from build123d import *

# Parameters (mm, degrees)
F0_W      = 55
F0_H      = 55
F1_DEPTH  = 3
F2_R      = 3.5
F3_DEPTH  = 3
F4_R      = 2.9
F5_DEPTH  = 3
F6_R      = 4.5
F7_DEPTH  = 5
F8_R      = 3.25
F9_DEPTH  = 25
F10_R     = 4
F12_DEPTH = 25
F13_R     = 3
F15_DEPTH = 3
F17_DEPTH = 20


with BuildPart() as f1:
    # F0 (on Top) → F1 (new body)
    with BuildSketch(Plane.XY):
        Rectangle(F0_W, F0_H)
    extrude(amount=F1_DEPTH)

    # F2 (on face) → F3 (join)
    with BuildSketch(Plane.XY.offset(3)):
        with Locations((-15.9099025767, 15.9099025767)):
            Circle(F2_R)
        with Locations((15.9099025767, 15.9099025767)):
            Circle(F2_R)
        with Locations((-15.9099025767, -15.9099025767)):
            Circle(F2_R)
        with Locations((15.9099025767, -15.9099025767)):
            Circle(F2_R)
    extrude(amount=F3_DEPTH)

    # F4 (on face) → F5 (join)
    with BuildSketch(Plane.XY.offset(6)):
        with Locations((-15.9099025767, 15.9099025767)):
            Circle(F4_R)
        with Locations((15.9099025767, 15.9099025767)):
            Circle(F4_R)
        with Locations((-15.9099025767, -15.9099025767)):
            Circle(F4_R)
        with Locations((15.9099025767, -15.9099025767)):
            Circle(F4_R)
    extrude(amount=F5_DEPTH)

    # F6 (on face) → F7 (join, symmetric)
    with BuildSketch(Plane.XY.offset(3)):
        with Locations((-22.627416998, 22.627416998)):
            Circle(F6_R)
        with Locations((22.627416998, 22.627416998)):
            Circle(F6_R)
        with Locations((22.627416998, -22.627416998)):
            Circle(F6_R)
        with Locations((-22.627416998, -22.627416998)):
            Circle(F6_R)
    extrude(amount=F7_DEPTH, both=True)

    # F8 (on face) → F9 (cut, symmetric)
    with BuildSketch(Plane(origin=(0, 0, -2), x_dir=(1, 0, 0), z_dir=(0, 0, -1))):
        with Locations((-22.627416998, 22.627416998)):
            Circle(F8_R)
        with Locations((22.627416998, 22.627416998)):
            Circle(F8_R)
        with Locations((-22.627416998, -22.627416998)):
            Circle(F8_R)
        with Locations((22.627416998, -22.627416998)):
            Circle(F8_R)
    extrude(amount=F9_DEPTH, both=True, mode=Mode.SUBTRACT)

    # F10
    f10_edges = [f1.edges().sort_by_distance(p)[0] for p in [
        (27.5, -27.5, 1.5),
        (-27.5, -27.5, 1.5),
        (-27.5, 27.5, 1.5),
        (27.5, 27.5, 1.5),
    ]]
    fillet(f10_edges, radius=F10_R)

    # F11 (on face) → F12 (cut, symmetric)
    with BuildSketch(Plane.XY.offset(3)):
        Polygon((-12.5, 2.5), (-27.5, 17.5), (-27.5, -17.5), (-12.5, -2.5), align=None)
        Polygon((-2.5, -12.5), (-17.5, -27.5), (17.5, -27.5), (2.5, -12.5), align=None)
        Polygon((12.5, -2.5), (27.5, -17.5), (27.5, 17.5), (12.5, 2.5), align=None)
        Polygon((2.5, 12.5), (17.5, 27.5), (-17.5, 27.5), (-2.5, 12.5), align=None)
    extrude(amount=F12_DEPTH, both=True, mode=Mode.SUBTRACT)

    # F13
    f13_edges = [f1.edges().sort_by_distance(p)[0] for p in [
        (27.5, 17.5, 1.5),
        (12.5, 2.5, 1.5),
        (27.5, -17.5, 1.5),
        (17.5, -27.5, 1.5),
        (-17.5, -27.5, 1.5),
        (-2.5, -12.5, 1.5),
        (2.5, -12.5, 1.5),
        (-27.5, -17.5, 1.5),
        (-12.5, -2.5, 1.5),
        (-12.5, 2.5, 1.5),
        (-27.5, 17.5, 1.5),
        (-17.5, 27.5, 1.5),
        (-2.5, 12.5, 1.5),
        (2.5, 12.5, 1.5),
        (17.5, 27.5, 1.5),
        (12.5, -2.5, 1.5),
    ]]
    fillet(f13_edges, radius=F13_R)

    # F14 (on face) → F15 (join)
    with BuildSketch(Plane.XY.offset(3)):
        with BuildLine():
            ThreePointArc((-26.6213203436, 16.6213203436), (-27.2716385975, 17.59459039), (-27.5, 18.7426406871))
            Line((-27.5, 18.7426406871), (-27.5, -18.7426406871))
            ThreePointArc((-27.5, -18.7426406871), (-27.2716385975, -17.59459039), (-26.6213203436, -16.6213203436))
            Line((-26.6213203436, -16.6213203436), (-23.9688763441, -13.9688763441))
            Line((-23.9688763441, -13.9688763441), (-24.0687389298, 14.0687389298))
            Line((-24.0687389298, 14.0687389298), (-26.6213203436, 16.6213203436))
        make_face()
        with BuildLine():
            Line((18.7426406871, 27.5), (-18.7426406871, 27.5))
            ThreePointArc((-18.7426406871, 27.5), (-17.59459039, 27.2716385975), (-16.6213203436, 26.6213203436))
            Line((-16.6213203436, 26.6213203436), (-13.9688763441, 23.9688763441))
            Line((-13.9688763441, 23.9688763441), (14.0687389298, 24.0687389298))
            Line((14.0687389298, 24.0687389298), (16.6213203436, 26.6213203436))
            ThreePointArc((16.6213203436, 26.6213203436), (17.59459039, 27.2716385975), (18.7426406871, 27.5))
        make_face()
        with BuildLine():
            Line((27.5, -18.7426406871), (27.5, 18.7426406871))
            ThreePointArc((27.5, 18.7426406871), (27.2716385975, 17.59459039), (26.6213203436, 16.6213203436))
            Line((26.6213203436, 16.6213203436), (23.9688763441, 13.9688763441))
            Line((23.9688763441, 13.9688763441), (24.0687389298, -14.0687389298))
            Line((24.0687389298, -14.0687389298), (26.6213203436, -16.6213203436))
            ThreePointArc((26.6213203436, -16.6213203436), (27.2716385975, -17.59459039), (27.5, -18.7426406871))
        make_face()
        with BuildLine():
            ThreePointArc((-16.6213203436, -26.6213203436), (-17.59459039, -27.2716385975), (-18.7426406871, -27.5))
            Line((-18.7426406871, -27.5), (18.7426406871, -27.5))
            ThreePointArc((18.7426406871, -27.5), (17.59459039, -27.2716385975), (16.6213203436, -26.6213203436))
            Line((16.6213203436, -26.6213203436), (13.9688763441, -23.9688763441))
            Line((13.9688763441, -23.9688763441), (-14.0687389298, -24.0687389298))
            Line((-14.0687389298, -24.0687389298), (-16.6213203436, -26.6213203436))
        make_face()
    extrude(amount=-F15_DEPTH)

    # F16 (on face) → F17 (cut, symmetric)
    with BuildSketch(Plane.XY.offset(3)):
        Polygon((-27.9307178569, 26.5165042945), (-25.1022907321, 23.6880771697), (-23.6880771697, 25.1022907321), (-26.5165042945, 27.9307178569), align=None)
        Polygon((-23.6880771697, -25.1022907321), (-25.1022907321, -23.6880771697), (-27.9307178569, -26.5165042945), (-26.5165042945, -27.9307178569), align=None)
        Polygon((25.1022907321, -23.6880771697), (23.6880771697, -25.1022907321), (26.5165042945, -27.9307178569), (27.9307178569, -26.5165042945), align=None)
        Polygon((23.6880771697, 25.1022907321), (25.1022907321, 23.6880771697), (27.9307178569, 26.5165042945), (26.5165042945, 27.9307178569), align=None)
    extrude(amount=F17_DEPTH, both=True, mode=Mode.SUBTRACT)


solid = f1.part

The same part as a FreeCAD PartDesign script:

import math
import FreeCAD as App
import Part
import Sketcher


def edges_at(feature, points):
    """Names of the edges that pass closest to the given points."""
    edges = feature.Shape.Edges
    near = lambda p: min(range(len(edges)), key=lambda i: edges[i].distToShape(Part.Vertex(*p))[0])
    return sorted({f"Edge{near(p) + 1}" for p in points})

doc = App.newDocument("Part")
body = doc.addObject("PartDesign::Body", "Body")

# Sketch on XY plane
sketch1 = body.newObject("Sketcher::SketchObject", "Sketch")
sketch1.AttachmentSupport = (doc.getObject("XY_Plane"), [""])
sketch1.MapMode = "FlatFace"
sketch1.addGeometry([
    Part.LineSegment(App.Vector(-28, 28, 0), App.Vector(-28, -28, 0)),
    Part.LineSegment(App.Vector(-28, -28, 0), App.Vector(28, -28, 0)),
    Part.LineSegment(App.Vector(28, -28, 0), App.Vector(28, 28, 0)),
    Part.LineSegment(App.Vector(28, 28, 0), App.Vector(-28, 28, 0)),
], False)
sketch1.addConstraint([
    Sketcher.Constraint("Coincident", 0, 2, 1, 1),
    Sketcher.Constraint("Coincident", 1, 2, 2, 1),
    Sketcher.Constraint("Coincident", 2, 2, 3, 1),
    Sketcher.Constraint("Coincident", 3, 2, 0, 1),
    Sketcher.Constraint("Vertical", 0),
    Sketcher.Constraint("Horizontal", 1),
    Sketcher.Constraint("Vertical", 2),
    Sketcher.Constraint("Horizontal", 3),
    Sketcher.Constraint("Symmetric", 0, 2, 2, 2, -1, 1),
    Sketcher.Constraint("Equal", 3, 0),
    Sketcher.Constraint("DistanceX", 1, 1, 1, 2, 55.0),
])
pad1 = body.newObject("PartDesign::Pad", "Pad")
pad1.Profile = sketch1
pad1.Length = 3

# Sketch on XY plane
sketch2 = body.newObject("Sketcher::SketchObject", "Sketch001")
sketch2.AttachmentSupport = (doc.getObject("XY_Plane"), [""])
sketch2.MapMode = "FlatFace"
sketch2.AttachmentOffset = App.Placement(App.Vector(0, 0, 3), App.Rotation())
sketch2.addGeometry([
    Part.Circle(App.Vector(-15.9, 15.9, 0), App.Vector(0, 0, 1), 3.5),
    Part.Circle(App.Vector(15.9, 15.9, 0), App.Vector(0, 0, 1), 3.5),
    Part.Circle(App.Vector(-15.9, -15.9, 0), App.Vector(0, 0, 1), 3.5),
    Part.Circle(App.Vector(15.9, -15.9, 0), App.Vector(0, 0, 1), 3.5),
], False)
sketch2.addConstraint([
    Sketcher.Constraint("Equal", 0, 1),
    Sketcher.Constraint("Equal", 1, 2),
    Sketcher.Constraint("Equal", 2, 3),
    Sketcher.Constraint("Symmetric", 1, 3, 2, 3, -1, 1),
    Sketcher.Constraint("Symmetric", 0, 3, 3, 3, -1, 1),
    Sketcher.Constraint("Symmetric", 0, 3, 1, 3, -2),
    Sketcher.Constraint("Diameter", 0, 7.0),
    Sketcher.Constraint("DistanceX", 0, 3, -1, 1, 15.909903),
    Sketcher.Constraint("DistanceY", -1, 1, 0, 3, 15.909903),
])
pad2 = body.newObject("PartDesign::Pad", "Pad001")
pad2.Profile = sketch2
pad2.Length = 3

# Sketch on XY plane
sketch3 = body.newObject("Sketcher::SketchObject", "Sketch002")
sketch3.AttachmentSupport = (doc.getObject("XY_Plane"), [""])
sketch3.MapMode = "FlatFace"
sketch3.AttachmentOffset = App.Placement(App.Vector(0, 0, 6), App.Rotation())
sketch3.addGeometry([
    Part.Circle(App.Vector(-15.9, 15.9, 0), App.Vector(0, 0, 1), 2.9),
    Part.Circle(App.Vector(15.9, 15.9, 0), App.Vector(0, 0, 1), 2.9),
    Part.Circle(App.Vector(-15.9, -15.9, 0), App.Vector(0, 0, 1), 2.9),
    Part.Circle(App.Vector(15.9, -15.9, 0), App.Vector(0, 0, 1), 2.9),
], False)
sketch3.addConstraint([
    Sketcher.Constraint("Equal", 0, 1),
    Sketcher.Constraint("Equal", 1, 2),
    Sketcher.Constraint("Equal", 2, 3),
    Sketcher.Constraint("Symmetric", 1, 3, 2, 3, -1, 1),
    Sketcher.Constraint("Symmetric", 0, 3, 3, 3, -1, 1),
    Sketcher.Constraint("Symmetric", 0, 3, 1, 3, -2),
    Sketcher.Constraint("Diameter", 0, 5.8),
    Sketcher.Constraint("DistanceX", 0, 3, -1, 1, 15.909903),
    Sketcher.Constraint("DistanceY", -1, 1, 0, 3, 15.909903),
])
pad3 = body.newObject("PartDesign::Pad", "Pad002")
pad3.Profile = sketch3
pad3.Length = 3

# Sketch on XY plane
sketch4 = body.newObject("Sketcher::SketchObject", "Sketch003")
sketch4.AttachmentSupport = (doc.getObject("XY_Plane"), [""])
sketch4.MapMode = "FlatFace"
sketch4.AttachmentOffset = App.Placement(App.Vector(0, 0, 3), App.Rotation())
sketch4.addGeometry([
    Part.Circle(App.Vector(-22.6, 22.6, 0), App.Vector(0, 0, 1), 4.5),
    Part.Circle(App.Vector(22.6, 22.6, 0), App.Vector(0, 0, 1), 4.5),
    Part.Circle(App.Vector(22.6, -22.6, 0), App.Vector(0, 0, 1), 4.5),
    Part.Circle(App.Vector(-22.6, -22.6, 0), App.Vector(0, 0, 1), 4.5),
], False)
sketch4.addConstraint([
    Sketcher.Constraint("Equal", 0, 1),
    Sketcher.Constraint("Equal", 1, 2),
    Sketcher.Constraint("Equal", 2, 3),
    Sketcher.Constraint("Symmetric", 0, 3, 2, 3, -1, 1),
    Sketcher.Constraint("Symmetric", 1, 3, 3, 3, -1, 1),
    Sketcher.Constraint("Symmetric", 0, 3, 1, 3, -2),
    Sketcher.Constraint("Diameter", 0, 9.0),
    Sketcher.Constraint("DistanceX", 0, 3, -1, 1, 22.627417),
    Sketcher.Constraint("DistanceY", -1, 1, 0, 3, 22.627417),
])
pad4 = body.newObject("PartDesign::Pad", "Pad003")
pad4.Profile = sketch4
pad4.Length = 10
pad4.Midplane = True

# Sketch on XY plane
sketch5 = body.newObject("Sketcher::SketchObject", "Sketch004")
sketch5.AttachmentSupport = (doc.getObject("XY_Plane"), [""])
sketch5.MapMode = "FlatFace"
sketch5.AttachmentOffset = App.Placement(App.Vector(0, 0, -2), App.Rotation())
sketch5.addGeometry([
    Part.Circle(App.Vector(-22.6, -22.6, 0), App.Vector(0, 0, 1), 3.2),
    Part.Circle(App.Vector(22.6, -22.6, 0), App.Vector(0, 0, 1), 3.2),
    Part.Circle(App.Vector(-22.6, 22.6, 0), App.Vector(0, 0, 1), 3.2),
    Part.Circle(App.Vector(22.6, 22.6, 0), App.Vector(0, 0, 1), 3.2),
], False)
sketch5.addConstraint([
    Sketcher.Constraint("Equal", 0, 1),
    Sketcher.Constraint("Equal", 1, 2),
    Sketcher.Constraint("Equal", 2, 3),
    Sketcher.Constraint("Symmetric", 1, 3, 2, 3, -1, 1),
    Sketcher.Constraint("Symmetric", 0, 3, 3, 3, -1, 1),
    Sketcher.Constraint("Symmetric", 0, 3, 1, 3, -2),
    Sketcher.Constraint("Diameter", 0, 6.5),
    Sketcher.Constraint("DistanceX", 0, 3, -1, 1, 22.627417),
    Sketcher.Constraint("DistanceY", 0, 3, -1, 1, 22.627417),
])
pocket1 = body.newObject("PartDesign::Pocket", "Pocket")
pocket1.Profile = sketch5
pocket1.Length = 50
pocket1.Midplane = True
doc.recompute()

fillet = body.newObject("PartDesign::Fillet", "Fillet")
fillet.Base = (pocket1, edges_at(pocket1, [
    (27.5, -27.5, 1.5),
    (-27.5, -27.5, 1.5),
    (-27.5, 27.5, 1.5),
    (27.5, 27.5, 1.5),
]))
fillet.Radius = 4

# Sketch on XY plane
sketch6 = body.newObject("Sketcher::SketchObject", "Sketch005")
sketch6.AttachmentSupport = (doc.getObject("XY_Plane"), [""])
sketch6.MapMode = "FlatFace"
sketch6.AttachmentOffset = App.Placement(App.Vector(0, 0, 3), App.Rotation())
sketch6.addGeometry([
    Part.LineSegment(App.Vector(-12, 2, 0), App.Vector(-28, 18, 0)),  # 0
    Part.LineSegment(App.Vector(-28, 18, 0), App.Vector(-28, -18, 0)),  # 1
    Part.LineSegment(App.Vector(-28, -18, 0), App.Vector(-12, -2, 0)),  # 2
    Part.LineSegment(App.Vector(-12, -2, 0), App.Vector(-12, 2, 0)),  # 3
    Part.LineSegment(App.Vector(-2, -12, 0), App.Vector(-18, -28, 0)),  # 4
    Part.LineSegment(App.Vector(-18, -28, 0), App.Vector(18, -28, 0)),  # 5
    Part.LineSegment(App.Vector(18, -28, 0), App.Vector(2, -12, 0)),  # 6
    Part.LineSegment(App.Vector(2, -12, 0), App.Vector(-2, -12, 0)),  # 7
    Part.LineSegment(App.Vector(12, -2, 0), App.Vector(28, -18, 0)),  # 8
    Part.LineSegment(App.Vector(28, -18, 0), App.Vector(28, 18, 0)),  # 9
    Part.LineSegment(App.Vector(28, 18, 0), App.Vector(12, 2, 0)),  # 10
    Part.LineSegment(App.Vector(12, 2, 0), App.Vector(12, -2, 0)),  # 11
    Part.LineSegment(App.Vector(2, 12, 0), App.Vector(18, 28, 0)),  # 12
    Part.LineSegment(App.Vector(18, 28, 0), App.Vector(-18, 28, 0)),  # 13
    Part.LineSegment(App.Vector(-18, 28, 0), App.Vector(-2, 12, 0)),  # 14
    Part.LineSegment(App.Vector(-2, 12, 0), App.Vector(2, 12, 0)),  # 15
], False)
sketch6.addConstraint([
    Sketcher.Constraint("Coincident", 0, 2, 1, 1),
    Sketcher.Constraint("Coincident", 1, 2, 2, 1),
    Sketcher.Constraint("Coincident", 2, 2, 3, 1),
    Sketcher.Constraint("Coincident", 3, 2, 0, 1),
    Sketcher.Constraint("Coincident", 4, 2, 5, 1),
    Sketcher.Constraint("Coincident", 5, 2, 6, 1),
    Sketcher.Constraint("Coincident", 6, 2, 7, 1),
    Sketcher.Constraint("Coincident", 7, 2, 4, 1),
    Sketcher.Constraint("Coincident", 8, 2, 9, 1),
    Sketcher.Constraint("Coincident", 9, 2, 10, 1),
    Sketcher.Constraint("Coincident", 10, 2, 11, 1),
    Sketcher.Constraint("Coincident", 11, 2, 8, 1),
    Sketcher.Constraint("Coincident", 12, 2, 13, 1),
    Sketcher.Constraint("Coincident", 13, 2, 14, 1),
    Sketcher.Constraint("Coincident", 14, 2, 15, 1),
    Sketcher.Constraint("Coincident", 15, 2, 12, 1),
    Sketcher.Constraint("Vertical", 1),
    Sketcher.Constraint("Vertical", 3),
    Sketcher.Constraint("Horizontal", 5),
    Sketcher.Constraint("Horizontal", 7),
    Sketcher.Constraint("Vertical", 9),
    Sketcher.Constraint("Vertical", 11),
    Sketcher.Constraint("Horizontal", 13),
    Sketcher.Constraint("Horizontal", 15),
    Sketcher.Constraint("Symmetric", 0, 2, 8, 2, -1, 1),
    Sketcher.Constraint("Symmetric", 2, 2, 10, 2, -1, 1),
    Sketcher.Constraint("Symmetric", 4, 2, 12, 2, -1, 1),
    Sketcher.Constraint("Symmetric", 6, 2, 14, 2, -1, 1),
    Sketcher.Constraint("Perpendicular", 0, 2),
    Sketcher.Constraint("Parallel", 2, 4),
    Sketcher.Constraint("Perpendicular", 4, 6),
    Sketcher.Constraint("Parallel", 6, 8),
    Sketcher.Constraint("Perpendicular", 8, 10),
    Sketcher.Constraint("Parallel", 10, 12),
    Sketcher.Constraint("Perpendicular", 12, 14),
    Sketcher.Constraint("Horizontal", 1, 2, 8, 2),
    Sketcher.Constraint("Horizontal", 3, 2, 10, 2),
    Sketcher.Constraint("Vertical", 5, 2, 12, 2),
    Sketcher.Constraint("Equal", 13, 1),
    Sketcher.Constraint("Equal", 15, 3),
    Sketcher.Constraint("DistanceX", 5, 1, 5, 2, 35.0),
    Sketcher.Constraint("DistanceX", 7, 2, 7, 1, 5.0),
    Sketcher.Constraint("DistanceX", 1, 2, 4, 2, 10.0),
    Sketcher.Constraint("DistanceY", 4, 2, 1, 2, 10.0),
])
pocket2 = body.newObject("PartDesign::Pocket", "Pocket001")
pocket2.Profile = sketch6
pocket2.Length = 50
pocket2.Midplane = True
doc.recompute()

fillet2 = body.newObject("PartDesign::Fillet", "Fillet001")
fillet2.Base = (pocket2, edges_at(pocket2, [
    (27.5, 17.5, 1.5),
    (12.5, 2.5, 1.5),
    (27.5, -17.5, 1.5),
    (17.5, -27.5, 1.5),
    (-17.5, -27.5, 1.5),
    (-2.5, -12.5, 1.5),
    (2.5, -12.5, 1.5),
    (-27.5, -17.5, 1.5),
    (-12.5, -2.5, 1.5),
    (-12.5, 2.5, 1.5),
    (-27.5, 17.5, 1.5),
    (-17.5, 27.5, 1.5),
    (-2.5, 12.5, 1.5),
    (2.5, 12.5, 1.5),
    (17.5, 27.5, 1.5),
    (12.5, -2.5, 1.5),
]))
fillet2.Radius = 3

# Sketch on XY plane
sketch7 = body.newObject("Sketcher::SketchObject", "Sketch006")
sketch7.AttachmentSupport = (doc.getObject("XY_Plane"), [""])
sketch7.MapMode = "FlatFace"
sketch7.AttachmentOffset = App.Placement(App.Vector(0, 0, 3), App.Rotation())
sketch7.addGeometry([
    Part.ArcOfCircle(Part.Circle(App.Vector(-24.5, 18.7, 0), App.Vector(0, 0, 1), 3), math.radians(180), math.radians(225)),  # 0
    Part.LineSegment(App.Vector(-27.5, 18.7, 0), App.Vector(-27.5, -18.7, 0)),  # 1
    Part.ArcOfCircle(Part.Circle(App.Vector(-24.5, -18.7, 0), App.Vector(0, 0, 1), 3), math.radians(135), math.radians(180)),  # 2
    Part.LineSegment(App.Vector(-26.6, -16.6, 0), App.Vector(-24, -14, 0)),  # 3
    Part.LineSegment(App.Vector(-24, -14, 0), App.Vector(-24.1, 14.1, 0)),  # 4
    Part.LineSegment(App.Vector(-24.1, 14.1, 0), App.Vector(-26.6, 16.6, 0)),  # 5
    Part.LineSegment(App.Vector(18.7, 27.5, 0), App.Vector(-18.7, 27.5, 0)),  # 6
    Part.ArcOfCircle(Part.Circle(App.Vector(-18.7, 24.5, 0), App.Vector(0, 0, 1), 3), math.radians(45), math.radians(90)),  # 7
    Part.LineSegment(App.Vector(-16.6, 26.6, 0), App.Vector(-14, 24, 0)),  # 8
    Part.LineSegment(App.Vector(-14, 24, 0), App.Vector(14.1, 24.1, 0)),  # 9
    Part.LineSegment(App.Vector(14.1, 24.1, 0), App.Vector(16.6, 26.6, 0)),  # 10
    Part.ArcOfCircle(Part.Circle(App.Vector(18.7, 24.5, 0), App.Vector(0, 0, 1), 3), math.radians(90), math.radians(135)),  # 11
    Part.LineSegment(App.Vector(27.5, -18.7, 0), App.Vector(27.5, 18.7, 0)),  # 12
    Part.ArcOfCircle(Part.Circle(App.Vector(24.5, 18.7, 0), App.Vector(0, 0, 1), 3), math.radians(-45), math.radians(0)),  # 13
    Part.LineSegment(App.Vector(26.6, 16.6, 0), App.Vector(24, 14, 0)),  # 14
    Part.LineSegment(App.Vector(24, 14, 0), App.Vector(24.1, -14.1, 0)),  # 15
    Part.LineSegment(App.Vector(24.1, -14.1, 0), App.Vector(26.6, -16.6, 0)),  # 16
    Part.ArcOfCircle(Part.Circle(App.Vector(24.5, -18.7, 0), App.Vector(0, 0, 1), 3), math.radians(0), math.radians(45)),  # 17
    Part.ArcOfCircle(Part.Circle(App.Vector(-18.7, -24.5, 0), App.Vector(0, 0, 1), 3), math.radians(-90), math.radians(-45)),  # 18
    Part.LineSegment(App.Vector(-18.7, -27.5, 0), App.Vector(18.7, -27.5, 0)),  # 19
    Part.ArcOfCircle(Part.Circle(App.Vector(18.7, -24.5, 0), App.Vector(0, 0, 1), 3), math.radians(-135), math.radians(-90)),  # 20
    Part.LineSegment(App.Vector(16.6, -26.6, 0), App.Vector(14, -24, 0)),  # 21
    Part.LineSegment(App.Vector(14, -24, 0), App.Vector(-14.1, -24.1, 0)),  # 22
    Part.LineSegment(App.Vector(-14.1, -24.1, 0), App.Vector(-16.6, -26.6, 0)),  # 23
], False)
sketch7.addConstraint([
    Sketcher.Constraint("Tangent", 0, 1, 1, 1),
    Sketcher.Constraint("Tangent", 1, 2, 2, 2),
    Sketcher.Constraint("Tangent", 2, 1, 3, 1),
    Sketcher.Constraint("Coincident", 3, 2, 4, 1),
    Sketcher.Constraint("Coincident", 4, 2, 5, 1),
    Sketcher.Constraint("Tangent", 5, 2, 0, 2),
    Sketcher.Constraint("Tangent", 6, 2, 7, 2),
    Sketcher.Constraint("Tangent", 7, 1, 8, 1),
    Sketcher.Constraint("Coincident", 8, 2, 9, 1),
    Sketcher.Constraint("Coincident", 9, 2, 10, 1),
    Sketcher.Constraint("Tangent", 10, 2, 11, 2),
    Sketcher.Constraint("Tangent", 11, 1, 6, 1),
    Sketcher.Constraint("Tangent", 12, 2, 13, 2),
    Sketcher.Constraint("Tangent", 13, 1, 14, 1),
    Sketcher.Constraint("Coincident", 14, 2, 15, 1),
    Sketcher.Constraint("Coincident", 15, 2, 16, 1),
    Sketcher.Constraint("Tangent", 16, 2, 17, 2),
    Sketcher.Constraint("Tangent", 17, 1, 12, 1),
    Sketcher.Constraint("Tangent", 18, 1, 19, 1),
    Sketcher.Constraint("Tangent", 19, 2, 20, 2),
    Sketcher.Constraint("Tangent", 20, 1, 21, 1),
    Sketcher.Constraint("Coincident", 21, 2, 22, 1),
    Sketcher.Constraint("Coincident", 22, 2, 23, 1),
    Sketcher.Constraint("Tangent", 23, 2, 18, 2),
    Sketcher.Constraint("Vertical", 1),
    Sketcher.Constraint("Horizontal", 6),
    Sketcher.Constraint("Vertical", 12),
    Sketcher.Constraint("Horizontal", 19),
    Sketcher.Constraint("Equal", 0, 2),
    Sketcher.Constraint("Equal", 2, 7),
    Sketcher.Constraint("Equal", 7, 11),
    Sketcher.Constraint("Equal", 11, 13),
    Sketcher.Constraint("Equal", 13, 17),
    Sketcher.Constraint("Equal", 17, 18),
    Sketcher.Constraint("Equal", 18, 20),
    Sketcher.Constraint("Symmetric", 2, 3, 13, 3, -1, 1),
    Sketcher.Constraint("Symmetric", 11, 3, 18, 3, -1, 1),
    Sketcher.Constraint("Symmetric", 3, 2, 14, 2, -1, 1),
    Sketcher.Constraint("Symmetric", 4, 2, 15, 2, -1, 1),
    Sketcher.Constraint("Symmetric", 7, 1, 20, 1, -1, 1),
    Sketcher.Constraint("Symmetric", 9, 2, 22, 2, -1, 1),
    Sketcher.Constraint("Symmetric", 7, 1, 10, 2, -2),
    Sketcher.Constraint("Symmetric", 5, 2, 13, 1, -2),
    Sketcher.Constraint("Perpendicular", 3, 5),
    Sketcher.Constraint("Parallel", 5, 8),
    Sketcher.Constraint("Perpendicular", 4, 9),
    Sketcher.Constraint("Perpendicular", 14, 16),
    Sketcher.Constraint("Perpendicular", 15, 22),
    Sketcher.Constraint("Equal", 19, 1),
    Sketcher.Constraint("Equal", 3, 8),
    Sketcher.Constraint("Radius", 0, 3.0),
    Sketcher.Constraint("DistanceX", 0, 3, 13, 3, 49.0),
    Sketcher.Constraint("DistanceY", 18, 3, 7, 3, 49.0),
    Sketcher.Constraint("DistanceX", 5, 2, 7, 1, 10.0),
    Sketcher.Constraint("DistanceY", 4, 2, 0, 3, 4.673902),
    Sketcher.Constraint("Distance", 3, 3.751122),
])
pad5 = body.newObject("PartDesign::Pad", "Pad004")
pad5.Profile = sketch7
pad5.Length = 3
pad5.Reversed = True

# Sketch on XY plane
sketch8 = body.newObject("Sketcher::SketchObject", "Sketch007")
sketch8.AttachmentSupport = (doc.getObject("XY_Plane"), [""])
sketch8.MapMode = "FlatFace"
sketch8.AttachmentOffset = App.Placement(App.Vector(0, 0, 3), App.Rotation())
sketch8.addGeometry([
    Part.LineSegment(App.Vector(-27.9, 26.5, 0), App.Vector(-25.1, 23.7, 0)),  # 0
    Part.LineSegment(App.Vector(-25.1, 23.7, 0), App.Vector(-23.7, 25.1, 0)),  # 1
    Part.LineSegment(App.Vector(-23.7, 25.1, 0), App.Vector(-26.5, 27.9, 0)),  # 2
    Part.LineSegment(App.Vector(-26.5, 27.9, 0), App.Vector(-27.9, 26.5, 0)),  # 3
    Part.LineSegment(App.Vector(-23.7, -25.1, 0), App.Vector(-25.1, -23.7, 0)),  # 4
    Part.LineSegment(App.Vector(-25.1, -23.7, 0), App.Vector(-27.9, -26.5, 0)),  # 5
    Part.LineSegment(App.Vector(-27.9, -26.5, 0), App.Vector(-26.5, -27.9, 0)),  # 6
    Part.LineSegment(App.Vector(-26.5, -27.9, 0), App.Vector(-23.7, -25.1, 0)),  # 7
    Part.LineSegment(App.Vector(25.1, -23.7, 0), App.Vector(23.7, -25.1, 0)),  # 8
    Part.LineSegment(App.Vector(23.7, -25.1, 0), App.Vector(26.5, -27.9, 0)),  # 9
    Part.LineSegment(App.Vector(26.5, -27.9, 0), App.Vector(27.9, -26.5, 0)),  # 10
    Part.LineSegment(App.Vector(27.9, -26.5, 0), App.Vector(25.1, -23.7, 0)),  # 11
    Part.LineSegment(App.Vector(23.7, 25.1, 0), App.Vector(25.1, 23.7, 0)),  # 12
    Part.LineSegment(App.Vector(25.1, 23.7, 0), App.Vector(27.9, 26.5, 0)),  # 13
    Part.LineSegment(App.Vector(27.9, 26.5, 0), App.Vector(26.5, 27.9, 0)),  # 14
    Part.LineSegment(App.Vector(26.5, 27.9, 0), App.Vector(23.7, 25.1, 0)),  # 15
], False)
sketch8.addConstraint([
    Sketcher.Constraint("Coincident", 0, 2, 1, 1),
    Sketcher.Constraint("Coincident", 1, 2, 2, 1),
    Sketcher.Constraint("Coincident", 2, 2, 3, 1),
    Sketcher.Constraint("Coincident", 3, 2, 0, 1),
    Sketcher.Constraint("Coincident", 4, 2, 5, 1),
    Sketcher.Constraint("Coincident", 5, 2, 6, 1),
    Sketcher.Constraint("Coincident", 6, 2, 7, 1),
    Sketcher.Constraint("Coincident", 7, 2, 4, 1),
    Sketcher.Constraint("Coincident", 8, 2, 9, 1),
    Sketcher.Constraint("Coincident", 9, 2, 10, 1),
    Sketcher.Constraint("Coincident", 10, 2, 11, 1),
    Sketcher.Constraint("Coincident", 11, 2, 8, 1),
    Sketcher.Constraint("Coincident", 12, 2, 13, 1),
    Sketcher.Constraint("Coincident", 13, 2, 14, 1),
    Sketcher.Constraint("Coincident", 14, 2, 15, 1),
    Sketcher.Constraint("Coincident", 15, 2, 12, 1),
    Sketcher.Constraint("Symmetric", 1, 2, 8, 2, -1, 1),
    Sketcher.Constraint("Symmetric", 2, 2, 9, 2, -1, 1),
    Sketcher.Constraint("Symmetric", 3, 2, 10, 2, -1, 1),
    Sketcher.Constraint("Symmetric", 0, 2, 11, 2, -1, 1),
    Sketcher.Constraint("Symmetric", 4, 2, 12, 2, -1, 1),
    Sketcher.Constraint("Symmetric", 5, 2, 13, 2, -1, 1),
    Sketcher.Constraint("Symmetric", 6, 2, 14, 2, -1, 1),
    Sketcher.Constraint("Symmetric", 7, 2, 15, 2, -1, 1),
    Sketcher.Constraint("Symmetric", 7, 2, 8, 2, -2),
    Sketcher.Constraint("Symmetric", 6, 2, 9, 2, -2),
    Sketcher.Constraint("Symmetric", 5, 2, 10, 2, -2),
    Sketcher.Constraint("Symmetric", 4, 2, 11, 2, -2),
    Sketcher.Constraint("Perpendicular", 0, 1),
    Sketcher.Constraint("Perpendicular", 1, 2),
    Sketcher.Constraint("Perpendicular", 2, 3),
    Sketcher.Constraint("Perpendicular", 3, 4),
    Sketcher.Constraint("Distance", 0, 4.0),
    Sketcher.Constraint("Distance", 1, 2.0),
    Sketcher.Constraint("DistanceX", 0, 2, -1, 1, 25.102291),
    Sketcher.Constraint("DistanceY", -1, 1, 1, 2, 25.102291),
])
pocket3 = body.newObject("PartDesign::Pocket", "Pocket002")
pocket3.Profile = sketch8
pocket3.Length = 40
pocket3.Midplane = True

doc.recompute()
